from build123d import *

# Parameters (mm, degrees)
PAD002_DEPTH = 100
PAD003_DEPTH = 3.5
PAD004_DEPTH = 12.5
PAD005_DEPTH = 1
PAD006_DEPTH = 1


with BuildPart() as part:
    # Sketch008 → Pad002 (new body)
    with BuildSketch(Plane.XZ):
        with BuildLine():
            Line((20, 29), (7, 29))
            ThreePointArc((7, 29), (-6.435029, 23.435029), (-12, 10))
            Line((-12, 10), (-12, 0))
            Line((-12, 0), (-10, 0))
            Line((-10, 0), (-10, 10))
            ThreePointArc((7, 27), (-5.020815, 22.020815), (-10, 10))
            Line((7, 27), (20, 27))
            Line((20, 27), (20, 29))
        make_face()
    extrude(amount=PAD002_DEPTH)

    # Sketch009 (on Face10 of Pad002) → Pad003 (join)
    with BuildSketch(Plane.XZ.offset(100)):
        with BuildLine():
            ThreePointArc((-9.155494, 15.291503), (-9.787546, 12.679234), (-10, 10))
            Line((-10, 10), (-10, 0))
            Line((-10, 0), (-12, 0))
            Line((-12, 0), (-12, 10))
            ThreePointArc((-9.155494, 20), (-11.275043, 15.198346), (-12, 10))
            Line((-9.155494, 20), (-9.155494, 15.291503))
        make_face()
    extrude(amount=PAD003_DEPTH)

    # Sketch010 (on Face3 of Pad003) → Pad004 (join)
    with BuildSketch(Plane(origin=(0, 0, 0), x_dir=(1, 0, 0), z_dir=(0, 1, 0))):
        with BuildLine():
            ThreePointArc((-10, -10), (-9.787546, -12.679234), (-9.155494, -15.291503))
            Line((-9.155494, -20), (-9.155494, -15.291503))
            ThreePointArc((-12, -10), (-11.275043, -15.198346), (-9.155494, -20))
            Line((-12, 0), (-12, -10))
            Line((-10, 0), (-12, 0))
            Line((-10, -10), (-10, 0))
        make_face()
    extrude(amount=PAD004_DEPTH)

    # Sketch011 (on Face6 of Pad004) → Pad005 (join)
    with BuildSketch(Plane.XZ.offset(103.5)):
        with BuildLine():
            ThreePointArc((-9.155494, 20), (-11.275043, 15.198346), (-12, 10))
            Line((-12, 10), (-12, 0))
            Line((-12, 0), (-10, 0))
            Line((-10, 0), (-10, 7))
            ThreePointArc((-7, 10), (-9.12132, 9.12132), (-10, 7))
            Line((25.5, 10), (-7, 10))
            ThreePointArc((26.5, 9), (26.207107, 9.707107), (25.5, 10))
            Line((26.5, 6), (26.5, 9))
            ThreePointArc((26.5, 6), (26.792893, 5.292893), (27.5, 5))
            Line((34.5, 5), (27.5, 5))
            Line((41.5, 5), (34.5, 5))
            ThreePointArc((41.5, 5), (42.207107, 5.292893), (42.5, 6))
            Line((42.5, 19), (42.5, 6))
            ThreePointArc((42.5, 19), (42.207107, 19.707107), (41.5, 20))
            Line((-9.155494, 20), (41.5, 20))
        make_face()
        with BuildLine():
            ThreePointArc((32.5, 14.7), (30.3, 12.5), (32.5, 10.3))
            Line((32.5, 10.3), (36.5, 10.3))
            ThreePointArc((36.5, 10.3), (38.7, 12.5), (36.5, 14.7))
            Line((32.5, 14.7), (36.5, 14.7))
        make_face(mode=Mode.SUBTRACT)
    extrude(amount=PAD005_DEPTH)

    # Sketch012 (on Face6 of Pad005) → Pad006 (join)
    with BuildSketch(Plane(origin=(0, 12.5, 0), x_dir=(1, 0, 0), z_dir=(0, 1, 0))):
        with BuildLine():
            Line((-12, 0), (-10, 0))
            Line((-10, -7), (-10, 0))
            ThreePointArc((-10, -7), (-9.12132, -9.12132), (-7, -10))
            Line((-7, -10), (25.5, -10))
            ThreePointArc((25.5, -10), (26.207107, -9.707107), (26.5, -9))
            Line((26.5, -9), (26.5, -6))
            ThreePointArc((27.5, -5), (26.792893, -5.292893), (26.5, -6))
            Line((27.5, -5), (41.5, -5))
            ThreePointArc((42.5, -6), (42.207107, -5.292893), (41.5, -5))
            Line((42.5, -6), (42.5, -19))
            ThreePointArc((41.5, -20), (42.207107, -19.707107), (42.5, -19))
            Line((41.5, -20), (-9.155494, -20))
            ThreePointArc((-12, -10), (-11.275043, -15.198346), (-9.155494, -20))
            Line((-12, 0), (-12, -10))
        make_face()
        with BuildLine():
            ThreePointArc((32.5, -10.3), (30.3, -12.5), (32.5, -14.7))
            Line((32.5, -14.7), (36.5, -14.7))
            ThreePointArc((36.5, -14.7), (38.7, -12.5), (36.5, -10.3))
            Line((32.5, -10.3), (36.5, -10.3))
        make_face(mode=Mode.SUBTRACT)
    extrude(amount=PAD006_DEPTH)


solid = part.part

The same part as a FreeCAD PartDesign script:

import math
import FreeCAD as App
import Part
import Sketcher

V = App.Vector

doc = App.newDocument("Part")
body = doc.addObject("PartDesign::Body", "Body")

sketch1 = body.newObject("Sketcher::SketchObject", "Sketch")
sketch1.AttachmentSupport = (doc.getObject("XZ_Plane"), [""])
sketch1.MapMode = "FlatFace"
sketch1.addGeometry(Part.LineSegment(V(20, 29, 0), V(7, 29, 0)), False)
sketch1.addGeometry(Part.ArcOfCircle(Part.Circle(V(7, 10, 0), V(0, 0, 1), 19), math.radians(90), math.radians(180)), False)
sketch1.addGeometry(Part.LineSegment(V(-12, 10, 0), V(-12, 0, 0)), False)
sketch1.addGeometry(Part.LineSegment(V(-12, 0, 0), V(-10, 0, 0)), False)
sketch1.addGeometry(Part.LineSegment(V(-10, 0, 0), V(-10, 10, 0)), False)
sketch1.addGeometry(Part.ArcOfCircle(Part.Circle(V(7, 10, 0), V(0, 0, 1), 17), math.radians(90), math.radians(180)), False)
sketch1.addGeometry(Part.LineSegment(V(7, 27, 0), V(20, 27, 0)), False)
sketch1.addGeometry(Part.LineSegment(V(20, 27, 0), V(20, 29, 0)), False)
sketch1.addConstraint(Sketcher.Constraint("Tangent", 0, 2, 1, 1))
sketch1.addConstraint(Sketcher.Constraint("Tangent", 1, 2, 2, 1))
sketch1.addConstraint(Sketcher.Constraint("Coincident", 2, 2, 3, 1))
sketch1.addConstraint(Sketcher.Constraint("Coincident", 3, 2, 4, 1))
sketch1.addConstraint(Sketcher.Constraint("Tangent", 4, 2, 5, 2))
sketch1.addConstraint(Sketcher.Constraint("Tangent", 5, 1, 6, 1))
sketch1.addConstraint(Sketcher.Constraint("Coincident", 6, 2, 7, 1))
sketch1.addConstraint(Sketcher.Constraint("Coincident", 7, 2, 0, 1))
sketch1.addConstraint(Sketcher.Constraint("Horizontal", 0))
sketch1.addConstraint(Sketcher.Constraint("Vertical", 2))
sketch1.addConstraint(Sketcher.Constraint("Horizontal", 3))
sketch1.addConstraint(Sketcher.Constraint("Vertical", 4))
sketch1.addConstraint(Sketcher.Constraint("Horizontal", 6))
sketch1.addConstraint(Sketcher.Constraint("Vertical", 7))
sketch1.addConstraint(Sketcher.Constraint("Coincident", 5, 3, 1, 3))
sketch1.addConstraint(Sketcher.Constraint("PointOnObject", 2, 2, -1))
sketch1.addConstraint(Sketcher.Constraint("Radius", 1, 18.999999))
sketch1.addConstraint(Sketcher.Constraint("Radius", 5, 17.000001))
sketch1.addConstraint(Sketcher.Constraint("DistanceX", 0, 2, 0, 1, 13.0))
sketch1.addConstraint(Sketcher.Constraint("DistanceY", 2, 2, 2, 1, 10.0))
sketch1.addConstraint(Sketcher.Constraint("DistanceX", -1, 1, 1, 3, 6.999999))
pad1 = body.newObject("PartDesign::Pad", "Pad")
pad1.Profile = sketch1
pad1.Length = 100

sketch2 = body.newObject("Sketcher::SketchObject", "Sketch001")
sketch2.AttachmentSupport = (doc.getObject("XZ_Plane"), [""])
sketch2.MapMode = "FlatFace"
sketch2.AttachmentOffset = App.Placement(V(0, 0, 100), App.Rotation())
sketch2.addGeometry(Part.ArcOfCircle(Part.Circle(V(7, 10, 0), V(0, 0, 1), 17), math.radians(161.86), math.radians(180)), False)
sketch2.addGeometry(Part.LineSegment(V(-9.2, 15.3, 0), V(-9.2, 20, 0)), False)
sketch2.addGeometry(Part.ArcOfCircle(Part.Circle(V(7, 10, 0), V(0, 0, 1), 19), math.radians(148), math.radians(180)), False)
sketch2.addGeometry(Part.LineSegment(V(-12, 10, 0), V(-12, 0, 0)), False)
sketch2.addGeometry(Part.LineSegment(V(-12, 0, 0), V(-10, 0, 0)), False)
sketch2.addGeometry(Part.LineSegment(V(-10, 0, 0), V(-10, 10, 0)), False)
sketch2.addConstraint(Sketcher.Constraint("Coincident", 0, 1, 1, 1))
sketch2.addConstraint(Sketcher.Constraint("Coincident", 1, 2, 2, 1))
sketch2.addConstraint(Sketcher.Constraint("Tangent", 2, 2, 3, 1))
sketch2.addConstraint(Sketcher.Constraint("Coincident", 3, 2, 4, 1))
sketch2.addConstraint(Sketcher.Constraint("Coincident", 4, 2, 5, 1))
sketch2.addConstraint(Sketcher.Constraint("Tangent", 5, 2, 0, 2))
sketch2.addConstraint(Sketcher.Constraint("Vertical", 1))
sketch2.addConstraint(Sketcher.Constraint("Vertical", 3))
sketch2.addConstraint(Sketcher.Constraint("Horizontal", 4))
sketch2.addConstraint(Sketcher.Constraint("Vertical", 5))
sketch2.addConstraint(Sketcher.Constraint("Coincident", 2, 3, 0, 3))
sketch2.addConstraint(Sketcher.Constraint("PointOnObject", 3, 2, -1))
sketch2.addConstraint(Sketcher.Constraint("Radius", 0, 16.999999))
sketch2.addConstraint(Sketcher.Constraint("DistanceX", 4, 1, 4, 2, 2.0))
sketch2.addConstraint(Sketcher.Constraint("DistanceY", 3, 2, 3, 1, 10.0))
sketch2.addConstraint(Sketcher.Constraint("DistanceX", -1, 1, 0, 3, 6.999999))
sketch2.addConstraint(Sketcher.Constraint("DistanceY", -1, 1, 1, 2, 20.0))
pad2 = body.newObject("PartDesign::Pad", "Pad001")
pad2.Profile = sketch2
pad2.Length = 3.5

sketch3 = body.newObject("Sketcher::SketchObject", "Sketch002")
sketch3.AttachmentSupport = (doc.getObject("XZ_Plane"), [""])
sketch3.MapMode = "FlatFace"
sketch3.addGeometry(Part.ArcOfCircle(Part.Circle(V(7, 10, 0), V(0, 0, 1), 17), math.radians(161.86), math.radians(180)), False)
sketch3.addGeometry(Part.LineSegment(V(-10, 10, 0), V(-10, 0, 0)), False)
sketch3.addGeometry(Part.LineSegment(V(-10, 0, 0), V(-12, 0, 0)), False)
sketch3.addGeometry(Part.LineSegment(V(-12, 0, 0), V(-12, 10, 0)), False)
sketch3.addGeometry(Part.ArcOfCircle(Part.Circle(V(7, 10, 0), V(0, 0, 1), 19), math.radians(148), math.radians(180)), False)
sketch3.addGeometry(Part.LineSegment(V(-9.2, 20, 0), V(-9.2, 15.3, 0)), False)
sketch3.addConstraint(Sketcher.Constraint("Tangent", 0, 2, 1, 1))
sketch3.addConstraint(Sketcher.Constraint("Coincident", 1, 2, 2, 1))
sketch3.addConstraint(Sketcher.Constraint("Coincident", 2, 2, 3, 1))
sketch3.addConstraint(Sketcher.Constraint("Tangent", 3, 2, 4, 2))
sketch3.addConstraint(Sketcher.Constraint("Coincident", 4, 1, 5, 1))
sketch3.addConstraint(Sketcher.Constraint("Coincident", 5, 2, 0, 1))
sketch3.addConstraint(Sketcher.Constraint("Vertical", 1))
sketch3.addConstraint(Sketcher.Constraint("Horizontal", 2))
sketch3.addConstraint(Sketcher.Constraint("Vertical", 3))
sketch3.addConstraint(Sketcher.Constraint("Vertical", 5))
sketch3.addConstraint(Sketcher.Constraint("Coincident", 4, 3, 0, 3))
sketch3.addConstraint(Sketcher.Constraint("PointOnObject", 1, 2, -1))
sketch3.addConstraint(Sketcher.Constraint("Radius", 0, 16.999999))
sketch3.addConstraint(Sketcher.Constraint("DistanceX", 2, 2, 2, 1, 2.0))
sketch3.addConstraint(Sketcher.Constraint("DistanceY", 1, 2, 1, 1, 10.0))
sketch3.addConstraint(Sketcher.Constraint("DistanceX", -1, 1, 0, 3, 6.999999))
sketch3.addConstraint(Sketcher.Constraint("DistanceY", -1, 1, 4, 1, 20.0))
pad3 = body.newObject("PartDesign::Pad", "Pad002")
pad3.Profile = sketch3
pad3.Length = 12.5
pad3.Reversed = True

sketch4 = body.newObject("Sketcher::SketchObject", "Sketch003")
sketch4.AttachmentSupport = (doc.getObject("XZ_Plane"), [""])
sketch4.MapMode = "FlatFace"
sketch4.AttachmentOffset = App.Placement(V(0, 0, 103.5), App.Rotation())
sketch4.addGeometry(Part.ArcOfCircle(Part.Circle(V(7, 10, 0), V(0, 0, 1), 19), math.radians(148), math.radians(180)), False)
sketch4.addGeometry(Part.LineSegment(V(-12, 10, 0), V(-12, 0, 0)), False)
sketch4.addGeometry(Part.LineSegment(V(-12, 0, 0), V(-10, 0, 0)), False)
sketch4.addGeometry(Part.LineSegment(V(-10, 0, 0), V(-10, 7, 0)), False)
sketch4.addGeometry(Part.ArcOfCircle(Part.Circle(V(-7, 7, 0), V(0, 0, 1), 3), math.radians(90), math.radians(180)), False)
sketch4.addGeometry(Part.LineSegment(V(-7, 10, 0), V(25.5, 10, 0)), False)
sketch4.addGeometry(Part.ArcOfCircle(Part.Circle(V(25.5, 9, 0), V(0, 0, 1), 1), math.radians(0), math.radians(90)), False)
sketch4.addGeometry(Part.LineSegment(V(26.5, 9, 0), V(26.5, 6, 0)), False)
sketch4.addGeometry(Part.ArcOfCircle(Part.Circle(V(27.5, 6, 0), V(0, 0, 1), 1), math.radians(180), math.radians(270)), False)
sketch4.addGeometry(Part.LineSegment(V(27.5, 5, 0), V(41.5, 5, 0)), False)
sketch4.addGeometry(Part.ArcOfCircle(Part.Circle(V(41.5, 6, 0), V(0, 0, 1), 1), math.radians(-90), math.radians(0)), False)
sketch4.addGeometry(Part.LineSegment(V(42.5, 6, 0), V(42.5, 19, 0)), False)
sketch4.addGeometry(Part.ArcOfCircle(Part.Circle(V(41.5, 19, 0), V(0, 0, 1), 1), math.radians(0), math.radians(90)), False)
sketch4.addGeometry(Part.LineSegment(V(41.5, 20, 0), V(-9.2, 20, 0)), False)
sketch4.addGeometry(Part.ArcOfCircle(Part.Circle(V(32.5, 12.5, 0), V(0, 0, 1), 2.2), math.radians(90), math.radians(270)), False)
sketch4.addGeometry(Part.LineSegment(V(32.5, 14.7, 0), V(36.5, 14.7, 0)), False)
sketch4.addGeometry(Part.ArcOfCircle(Part.Circle(V(36.5, 12.5, 0), V(0, 0, 1), 2.2), math.radians(-90), math.radians(90)), False)
sketch4.addGeometry(Part.LineSegment(V(36.5, 10.3, 0), V(32.5, 10.3, 0)), False)
sketch4.addConstraint(Sketcher.Constraint("Tangent", 0, 2, 1, 1))
sketch4.addConstraint(Sketcher.Constraint("Coincident", 1, 2, 2, 1))
sketch4.addConstraint(Sketcher.Constraint("Coincident", 2, 2, 3, 1))
sketch4.addConstraint(Sketcher.Constraint("Tangent", 3, 2, 4, 2))
sketch4.addConstraint(Sketcher.Constraint("Tangent", 4, 1, 5, 1))
sketch4.addConstraint(Sketcher.Constraint("Tangent", 5, 2, 6, 2))
sketch4.addConstraint(Sketcher.Constraint("Tangent", 6, 1, 7, 1))
sketch4.addConstraint(Sketcher.Constraint("Tangent", 7, 2, 8, 1))
sketch4.addConstraint(Sketcher.Constraint("Tangent", 8, 2, 9, 1))
sketch4.addConstraint(Sketcher.Constraint("Tangent", 9, 2, 10, 1))
sketch4.addConstraint(Sketcher.Constraint("Tangent", 10, 2, 11, 1))
sketch4.addConstraint(Sketcher.Constraint("Tangent", 11, 2, 12, 1))
sketch4.addConstraint(Sketcher.Constraint("Tangent", 12, 2, 13, 1))
sketch4.addConstraint(Sketcher.Constraint("Coincident", 13, 2, 0, 1))
sketch4.addConstraint(Sketcher.Constraint("Tangent", 14, 1, 15, 1))
sketch4.addConstraint(Sketcher.Constraint("Tangent", 15, 2, 16, 2))
sketch4.addConstraint(Sketcher.Constraint("Tangent", 16, 1, 17, 1))
sketch4.addConstraint(Sketcher.Constraint("Tangent", 17, 2, 14, 2))
sketch4.addConstraint(Sketcher.Constraint("Vertical", 1))
sketch4.addConstraint(Sketcher.Constraint("Horizontal", 2))
sketch4.addConstraint(Sketcher.Constraint("Vertical", 3))
sketch4.addConstraint(Sketcher.Constraint("Horizontal", 5))
sketch4.addConstraint(Sketcher.Constraint("Vertical", 7))
sketch4.addConstraint(Sketcher.Constraint("Horizontal", 9))
sketch4.addConstraint(Sketcher.Constraint("Vertical", 11))
sketch4.addConstraint(Sketcher.Constraint("Horizontal", 13))
sketch4.addConstraint(Sketcher.Constraint("Horizontal", 15))
sketch4.addConstraint(Sketcher.Constraint("Horizontal", 17))
sketch4.addConstraint(Sketcher.Constraint("Equal", 6, 8))
sketch4.addConstraint(Sketcher.Constraint("Equal", 8, 10))
sketch4.addConstraint(Sketcher.Constraint("Equal", 10, 12))
sketch4.addConstraint(Sketcher.Constraint("PointOnObject", 1, 2, -1))
sketch4.addConstraint(Sketcher.Constraint("Horizontal", 0, 2, 4, 1))
sketch4.addConstraint(Sketcher.Constraint("Radius", 4, 3.000001))
sketch4.addConstraint(Sketcher.Constraint("Radius", 6, 0.999999))
sketch4.addConstraint(Sketcher.Constraint("Radius", 14, 2.2))
sketch4.addConstraint(Sketcher.Constraint("DistanceX", 2, 1, 2, 2, 2.0))
sketch4.addConstraint(Sketcher.Constraint("DistanceX", 9, 1, 9, 2, 14.0))
sketch4.addConstraint(Sketcher.Constraint("DistanceX", 15, 1, 15, 2, 4.0))
sketch4.addConstraint(Sketcher.Constraint("DistanceY", 1, 2, 1, 1, 10.0))
sketch4.addConstraint(Sketcher.Constraint("DistanceY", 7, 2, 7, 1, 3.0))
sketch4.addConstraint(Sketcher.Constraint("DistanceY", 11, 1, 11, 2, 13.0))
sketch4.addConstraint(Sketcher.Constraint("DistanceX", 5, 1, 5, 2, 32.5))
sketch4.addConstraint(Sketcher.Constraint("DistanceX", 4, 3, -1, 1, 6.999999))
sketch4.addConstraint(Sketcher.Constraint("DistanceX", 6, 3, 14, 3, 6.999999))
sketch4.addConstraint(Sketcher.Constraint("DistanceY", -1, 1, 14, 3, 12.5))
sketch4.addConstraint(Sketcher.Constraint("Radius", 0, 18.999997))
pad4 = body.newObject("PartDesign::Pad", "Pad003")
pad4.Profile = sketch4
pad4.Length = 1

sketch5 = body.newObject("Sketcher::SketchObject", "Sketch004")
sketch5.AttachmentSupport = (doc.getObject("XZ_Plane"), [""])
sketch5.MapMode = "FlatFace"
sketch5.AttachmentOffset = App.Placement(V(0, 0, -12.5), App.Rotation())
sketch5.addGeometry(Part.LineSegment(V(-10, 0, 0), V(-12, 0, 0)), False)
sketch5.addGeometry(Part.LineSegment(V(-12, 0, 0), V(-12, 10, 0)), False)
sketch5.addGeometry(Part.ArcOfCircle(Part.Circle(V(7, 10, 0), V(0, 0, 1), 19), math.radians(148), math.radians(180)), False)
sketch5.addGeometry(Part.LineSegment(V(-9.2, 20, 0), V(41.5, 20, 0)), False)
sketch5.addGeometry(Part.ArcOfCircle(Part.Circle(V(41.5, 19, 0), V(0, 0, 1), 1), math.radians(0), math.radians(90)), False)
sketch5.addGeometry(Part.LineSegment(V(42.5, 19, 0), V(42.5, 6, 0)), False)
sketch5.addGeometry(Part.ArcOfCircle(Part.Circle(V(41.5, 6, 0), V(0, 0, 1), 1), math.radians(-90), math.radians(0)), False)
sketch5.addGeometry(Part.LineSegment(V(41.5, 5, 0), V(27.5, 5, 0)), False)
sketch5.addGeometry(Part.ArcOfCircle(Part.Circle(V(27.5, 6, 0), V(0, 0, 1), 1), math.radians(180), math.radians(270)), False)
sketch5.addGeometry(Part.LineSegment(V(26.5, 6, 0), V(26.5, 9, 0)), False)
sketch5.addGeometry(Part.ArcOfCircle(Part.Circle(V(25.5, 9, 0), V(0, 0, 1), 1), math.radians(0), math.radians(90)), False)
sketch5.addGeometry(Part.LineSegment(V(25.5, 10, 0), V(-7, 10, 0)), False)
sketch5.addGeometry(Part.ArcOfCircle(Part.Circle(V(-7, 7, 0), V(0, 0, 1), 3), math.radians(90), math.radians(180)), False)
sketch5.addGeometry(Part.LineSegment(V(-10, 7, 0), V(-10, 0, 0)), False)
sketch5.addGeometry(Part.LineSegment(V(32.5, 10.3, 0), V(36.5, 10.3, 0)), False)
sketch5.addGeometry(Part.ArcOfCircle(Part.Circle(V(36.5, 12.5, 0), V(0, 0, 1), 2.2), math.radians(-90), math.radians(90)), False)
sketch5.addGeometry(Part.LineSegment(V(36.5, 14.7, 0), V(32.5, 14.7, 0)), False)
sketch5.addGeometry(Part.ArcOfCircle(Part.Circle(V(32.5, 12.5, 0), V(0, 0, 1), 2.2), math.radians(90), math.radians(270)), False)
sketch5.addConstraint(Sketcher.Constraint("Coincident", 0, 2, 1, 1))
sketch5.addConstraint(Sketcher.Constraint("Tangent", 1, 2, 2, 2))
sketch5.addConstraint(Sketcher.Constraint("Coincident", 2, 1, 3, 1))
sketch5.addConstraint(Sketcher.Constraint("Tangent", 3, 2, 4, 2))
sketch5.addConstraint(Sketcher.Constraint("Tangent", 4, 1, 5, 1))
sketch5.addConstraint(Sketcher.Constraint("Tangent", 5, 2, 6, 2))
sketch5.addConstraint(Sketcher.Constraint("Tangent", 6, 1, 7, 1))
sketch5.addConstraint(Sketcher.Constraint("Tangent", 7, 2, 8, 2))
sketch5.addConstraint(Sketcher.Constraint("Tangent", 8, 1, 9, 1))
sketch5.addConstraint(Sketcher.Constraint("Tangent", 9, 2, 10, 1))
sketch5.addConstraint(Sketcher.Constraint("Tangent", 10, 2, 11, 1))
sketch5.addConstraint(Sketcher.Constraint("Tangent", 11, 2, 12, 1))
sketch5.addConstraint(Sketcher.Constraint("Tangent", 12, 2, 13, 1))
sketch5.addConstraint(Sketcher.Constraint("Coincident", 13, 2, 0, 1))
sketch5.addConstraint(Sketcher.Constraint("Tangent", 14, 2, 15, 1))
sketch5.addConstraint(Sketcher.Constraint("Tangent", 15, 2, 16, 1))
sketch5.addConstraint(Sketcher.Constraint("Tangent", 16, 2, 17, 1))
sketch5.addConstraint(Sketcher.Constraint("Tangent", 17, 2, 14, 1))
sketch5.addConstraint(Sketcher.Constraint("Horizontal", 0))
sketch5.addConstraint(Sketcher.Constraint("Vertical", 1))
sketch5.addConstraint(Sketcher.Constraint("Horizontal", 3))
sketch5.addConstraint(Sketcher.Constraint("Vertical", 5))
sketch5.addConstraint(Sketcher.Constraint("Horizontal", 7))
sketch5.addConstraint(Sketcher.Constraint("Vertical", 9))
sketch5.addConstraint(Sketcher.Constraint("Horizontal", 11))
sketch5.addConstraint(Sketcher.Constraint("Vertical", 13))
sketch5.addConstraint(Sketcher.Constraint("Horizontal", 14))
sketch5.addConstraint(Sketcher.Constraint("Horizontal", 16))
sketch5.addConstraint(Sketcher.Constraint("Equal", 4, 6))
sketch5.addConstraint(Sketcher.Constraint("Equal", 6, 8))
sketch5.addConstraint(Sketcher.Constraint("Equal", 8, 10))
sketch5.addConstraint(Sketcher.Constraint("PointOnObject", 0, 2, -1))
sketch5.addConstraint(Sketcher.Constraint("Horizontal", 1, 2, 10, 2))
sketch5.addConstraint(Sketcher.Constraint("Radius", 4, 0.999999))
sketch5.addConstraint(Sketcher.Constraint("Radius", 12, 3.000001))
sketch5.addConstraint(Sketcher.Constraint("Radius", 15, 2.2))
sketch5.addConstraint(Sketcher.Constraint("DistanceX", 0, 2, 0, 1, 2.0))
sketch5.addConstraint(Sketcher.Constraint("DistanceX", 7, 2, 7, 1, 14.0))
sketch5.addConstraint(Sketcher.Constraint("DistanceX", 14, 1, 14, 2, 4.0))
sketch5.addConstraint(Sketcher.Constraint("DistanceY", 1, 1, 1, 2, 10.0))
sketch5.addConstraint(Sketcher.Constraint("DistanceY", 5, 2, 5, 1, 13.0))
sketch5.addConstraint(Sketcher.Constraint("DistanceY", 9, 1, 9, 2, 3.0))
sketch5.addConstraint(Sketcher.Constraint("DistanceX", 11, 2, 11, 1, 32.5))
sketch5.addConstraint(Sketcher.Constraint("DistanceX", 12, 3, -1, 1, 6.999999))
sketch5.addConstraint(Sketcher.Constraint("DistanceX", 15, 3, 6, 3, 5.000001))
sketch5.addConstraint(Sketcher.Constraint("DistanceY", -1, 1, 15, 3, 12.5))
sketch5.addConstraint(Sketcher.Constraint("Radius", 2, 18.999997))
pad5 = body.newObject("PartDesign::Pad", "Pad004")
pad5.Profile = sketch5
pad5.Length = 1
pad5.Reversed = True

doc.recompute()
